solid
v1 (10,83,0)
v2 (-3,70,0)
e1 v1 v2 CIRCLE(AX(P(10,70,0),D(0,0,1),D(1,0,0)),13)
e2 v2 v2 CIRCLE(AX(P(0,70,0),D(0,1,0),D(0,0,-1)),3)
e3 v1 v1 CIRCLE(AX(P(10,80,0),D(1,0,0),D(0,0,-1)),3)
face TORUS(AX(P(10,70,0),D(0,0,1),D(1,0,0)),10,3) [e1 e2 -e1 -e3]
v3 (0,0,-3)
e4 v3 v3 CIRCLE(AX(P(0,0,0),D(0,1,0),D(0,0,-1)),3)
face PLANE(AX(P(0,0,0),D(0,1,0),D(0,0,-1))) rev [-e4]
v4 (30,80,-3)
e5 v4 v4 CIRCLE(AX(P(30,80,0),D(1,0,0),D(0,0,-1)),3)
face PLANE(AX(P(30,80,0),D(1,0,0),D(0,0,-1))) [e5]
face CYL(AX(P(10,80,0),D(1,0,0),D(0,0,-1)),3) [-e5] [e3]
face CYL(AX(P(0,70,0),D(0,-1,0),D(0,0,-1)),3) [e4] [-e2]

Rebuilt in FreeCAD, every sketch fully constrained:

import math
import FreeCAD as App
import Part
import Sketcher

V = App.Vector
Q = App.Units.Quantity

doc = App.newDocument("Part")
body = doc.addObject("PartDesign::Body", "Body")

# Sketch on YZ plane
sketch1 = body.newObject("Sketcher::SketchObject", "Sketch")
sketch1.AttachmentSupport = (doc.getObject("YZ_Plane"), [""])
sketch1.MapMode = "FlatFace"
sketch1.AttachmentOffset = App.Placement(V(0, 0, 30), App.Rotation())
sketch1.addGeometry(Part.Circle(V(80, 0, 0), V(0, 0, 1), 3), False)
sketch1.addConstraint(Sketcher.Constraint("PointOnObject", 0, 3, -1))
sketch1.addConstraint(Sketcher.Constraint("Diameter", 0, Q("6 mm")))
sketch1.addConstraint(Sketcher.Constraint("DistanceX", -1, 1, 0, 3, Q("80 mm")))

# Sketch on XY plane
sketch2 = body.newObject("Sketcher::SketchObject", "Sketch001")
sketch2.AttachmentSupport = (doc.getObject("XY_Plane"), [""])
sketch2.MapMode = "FlatFace"
sketch2.addGeometry(Part.LineSegment(V(0, 0, 0), V(0, 70, 0)), False)
sketch2.addGeometry(Part.ArcOfCircle(Part.Circle(V(10, 70, 0), V(0, 0, 1), 10), math.radians(90), math.radians(180)), False)
sketch2.addGeometry(Part.LineSegment(V(10, 80, 0), V(30, 80, 0)), False)
sketch2.addConstraint(Sketcher.Constraint("Tangent", 0, 2, 1, 2))
sketch2.addConstraint(Sketcher.Constraint("Tangent", 1, 1, 2, 1))
sketch2.addConstraint(Sketcher.Constraint("Vertical", 0))
sketch2.addConstraint(Sketcher.Constraint("Horizontal", 2))
sketch2.addConstraint(Sketcher.Constraint("Coincident", 0, 1, -1, 1))
sketch2.addConstraint(Sketcher.Constraint("Radius", 1, Q("10 mm")))
sketch2.addConstraint(Sketcher.Constraint("DistanceX", 2, 1, 2, 2, Q("20 mm")))
sketch2.addConstraint(Sketcher.Constraint("DistanceY", 0, 1, 0, 2, Q("70 mm")))
doc.recompute()

additivepipe = body.newObject("PartDesign::AdditivePipe", "AdditivePipe")
additivepipe.Profile = sketch1
additivepipe.Spine = (sketch2, ["Edge1", "Edge2", "Edge3"])

doc.recompute()
